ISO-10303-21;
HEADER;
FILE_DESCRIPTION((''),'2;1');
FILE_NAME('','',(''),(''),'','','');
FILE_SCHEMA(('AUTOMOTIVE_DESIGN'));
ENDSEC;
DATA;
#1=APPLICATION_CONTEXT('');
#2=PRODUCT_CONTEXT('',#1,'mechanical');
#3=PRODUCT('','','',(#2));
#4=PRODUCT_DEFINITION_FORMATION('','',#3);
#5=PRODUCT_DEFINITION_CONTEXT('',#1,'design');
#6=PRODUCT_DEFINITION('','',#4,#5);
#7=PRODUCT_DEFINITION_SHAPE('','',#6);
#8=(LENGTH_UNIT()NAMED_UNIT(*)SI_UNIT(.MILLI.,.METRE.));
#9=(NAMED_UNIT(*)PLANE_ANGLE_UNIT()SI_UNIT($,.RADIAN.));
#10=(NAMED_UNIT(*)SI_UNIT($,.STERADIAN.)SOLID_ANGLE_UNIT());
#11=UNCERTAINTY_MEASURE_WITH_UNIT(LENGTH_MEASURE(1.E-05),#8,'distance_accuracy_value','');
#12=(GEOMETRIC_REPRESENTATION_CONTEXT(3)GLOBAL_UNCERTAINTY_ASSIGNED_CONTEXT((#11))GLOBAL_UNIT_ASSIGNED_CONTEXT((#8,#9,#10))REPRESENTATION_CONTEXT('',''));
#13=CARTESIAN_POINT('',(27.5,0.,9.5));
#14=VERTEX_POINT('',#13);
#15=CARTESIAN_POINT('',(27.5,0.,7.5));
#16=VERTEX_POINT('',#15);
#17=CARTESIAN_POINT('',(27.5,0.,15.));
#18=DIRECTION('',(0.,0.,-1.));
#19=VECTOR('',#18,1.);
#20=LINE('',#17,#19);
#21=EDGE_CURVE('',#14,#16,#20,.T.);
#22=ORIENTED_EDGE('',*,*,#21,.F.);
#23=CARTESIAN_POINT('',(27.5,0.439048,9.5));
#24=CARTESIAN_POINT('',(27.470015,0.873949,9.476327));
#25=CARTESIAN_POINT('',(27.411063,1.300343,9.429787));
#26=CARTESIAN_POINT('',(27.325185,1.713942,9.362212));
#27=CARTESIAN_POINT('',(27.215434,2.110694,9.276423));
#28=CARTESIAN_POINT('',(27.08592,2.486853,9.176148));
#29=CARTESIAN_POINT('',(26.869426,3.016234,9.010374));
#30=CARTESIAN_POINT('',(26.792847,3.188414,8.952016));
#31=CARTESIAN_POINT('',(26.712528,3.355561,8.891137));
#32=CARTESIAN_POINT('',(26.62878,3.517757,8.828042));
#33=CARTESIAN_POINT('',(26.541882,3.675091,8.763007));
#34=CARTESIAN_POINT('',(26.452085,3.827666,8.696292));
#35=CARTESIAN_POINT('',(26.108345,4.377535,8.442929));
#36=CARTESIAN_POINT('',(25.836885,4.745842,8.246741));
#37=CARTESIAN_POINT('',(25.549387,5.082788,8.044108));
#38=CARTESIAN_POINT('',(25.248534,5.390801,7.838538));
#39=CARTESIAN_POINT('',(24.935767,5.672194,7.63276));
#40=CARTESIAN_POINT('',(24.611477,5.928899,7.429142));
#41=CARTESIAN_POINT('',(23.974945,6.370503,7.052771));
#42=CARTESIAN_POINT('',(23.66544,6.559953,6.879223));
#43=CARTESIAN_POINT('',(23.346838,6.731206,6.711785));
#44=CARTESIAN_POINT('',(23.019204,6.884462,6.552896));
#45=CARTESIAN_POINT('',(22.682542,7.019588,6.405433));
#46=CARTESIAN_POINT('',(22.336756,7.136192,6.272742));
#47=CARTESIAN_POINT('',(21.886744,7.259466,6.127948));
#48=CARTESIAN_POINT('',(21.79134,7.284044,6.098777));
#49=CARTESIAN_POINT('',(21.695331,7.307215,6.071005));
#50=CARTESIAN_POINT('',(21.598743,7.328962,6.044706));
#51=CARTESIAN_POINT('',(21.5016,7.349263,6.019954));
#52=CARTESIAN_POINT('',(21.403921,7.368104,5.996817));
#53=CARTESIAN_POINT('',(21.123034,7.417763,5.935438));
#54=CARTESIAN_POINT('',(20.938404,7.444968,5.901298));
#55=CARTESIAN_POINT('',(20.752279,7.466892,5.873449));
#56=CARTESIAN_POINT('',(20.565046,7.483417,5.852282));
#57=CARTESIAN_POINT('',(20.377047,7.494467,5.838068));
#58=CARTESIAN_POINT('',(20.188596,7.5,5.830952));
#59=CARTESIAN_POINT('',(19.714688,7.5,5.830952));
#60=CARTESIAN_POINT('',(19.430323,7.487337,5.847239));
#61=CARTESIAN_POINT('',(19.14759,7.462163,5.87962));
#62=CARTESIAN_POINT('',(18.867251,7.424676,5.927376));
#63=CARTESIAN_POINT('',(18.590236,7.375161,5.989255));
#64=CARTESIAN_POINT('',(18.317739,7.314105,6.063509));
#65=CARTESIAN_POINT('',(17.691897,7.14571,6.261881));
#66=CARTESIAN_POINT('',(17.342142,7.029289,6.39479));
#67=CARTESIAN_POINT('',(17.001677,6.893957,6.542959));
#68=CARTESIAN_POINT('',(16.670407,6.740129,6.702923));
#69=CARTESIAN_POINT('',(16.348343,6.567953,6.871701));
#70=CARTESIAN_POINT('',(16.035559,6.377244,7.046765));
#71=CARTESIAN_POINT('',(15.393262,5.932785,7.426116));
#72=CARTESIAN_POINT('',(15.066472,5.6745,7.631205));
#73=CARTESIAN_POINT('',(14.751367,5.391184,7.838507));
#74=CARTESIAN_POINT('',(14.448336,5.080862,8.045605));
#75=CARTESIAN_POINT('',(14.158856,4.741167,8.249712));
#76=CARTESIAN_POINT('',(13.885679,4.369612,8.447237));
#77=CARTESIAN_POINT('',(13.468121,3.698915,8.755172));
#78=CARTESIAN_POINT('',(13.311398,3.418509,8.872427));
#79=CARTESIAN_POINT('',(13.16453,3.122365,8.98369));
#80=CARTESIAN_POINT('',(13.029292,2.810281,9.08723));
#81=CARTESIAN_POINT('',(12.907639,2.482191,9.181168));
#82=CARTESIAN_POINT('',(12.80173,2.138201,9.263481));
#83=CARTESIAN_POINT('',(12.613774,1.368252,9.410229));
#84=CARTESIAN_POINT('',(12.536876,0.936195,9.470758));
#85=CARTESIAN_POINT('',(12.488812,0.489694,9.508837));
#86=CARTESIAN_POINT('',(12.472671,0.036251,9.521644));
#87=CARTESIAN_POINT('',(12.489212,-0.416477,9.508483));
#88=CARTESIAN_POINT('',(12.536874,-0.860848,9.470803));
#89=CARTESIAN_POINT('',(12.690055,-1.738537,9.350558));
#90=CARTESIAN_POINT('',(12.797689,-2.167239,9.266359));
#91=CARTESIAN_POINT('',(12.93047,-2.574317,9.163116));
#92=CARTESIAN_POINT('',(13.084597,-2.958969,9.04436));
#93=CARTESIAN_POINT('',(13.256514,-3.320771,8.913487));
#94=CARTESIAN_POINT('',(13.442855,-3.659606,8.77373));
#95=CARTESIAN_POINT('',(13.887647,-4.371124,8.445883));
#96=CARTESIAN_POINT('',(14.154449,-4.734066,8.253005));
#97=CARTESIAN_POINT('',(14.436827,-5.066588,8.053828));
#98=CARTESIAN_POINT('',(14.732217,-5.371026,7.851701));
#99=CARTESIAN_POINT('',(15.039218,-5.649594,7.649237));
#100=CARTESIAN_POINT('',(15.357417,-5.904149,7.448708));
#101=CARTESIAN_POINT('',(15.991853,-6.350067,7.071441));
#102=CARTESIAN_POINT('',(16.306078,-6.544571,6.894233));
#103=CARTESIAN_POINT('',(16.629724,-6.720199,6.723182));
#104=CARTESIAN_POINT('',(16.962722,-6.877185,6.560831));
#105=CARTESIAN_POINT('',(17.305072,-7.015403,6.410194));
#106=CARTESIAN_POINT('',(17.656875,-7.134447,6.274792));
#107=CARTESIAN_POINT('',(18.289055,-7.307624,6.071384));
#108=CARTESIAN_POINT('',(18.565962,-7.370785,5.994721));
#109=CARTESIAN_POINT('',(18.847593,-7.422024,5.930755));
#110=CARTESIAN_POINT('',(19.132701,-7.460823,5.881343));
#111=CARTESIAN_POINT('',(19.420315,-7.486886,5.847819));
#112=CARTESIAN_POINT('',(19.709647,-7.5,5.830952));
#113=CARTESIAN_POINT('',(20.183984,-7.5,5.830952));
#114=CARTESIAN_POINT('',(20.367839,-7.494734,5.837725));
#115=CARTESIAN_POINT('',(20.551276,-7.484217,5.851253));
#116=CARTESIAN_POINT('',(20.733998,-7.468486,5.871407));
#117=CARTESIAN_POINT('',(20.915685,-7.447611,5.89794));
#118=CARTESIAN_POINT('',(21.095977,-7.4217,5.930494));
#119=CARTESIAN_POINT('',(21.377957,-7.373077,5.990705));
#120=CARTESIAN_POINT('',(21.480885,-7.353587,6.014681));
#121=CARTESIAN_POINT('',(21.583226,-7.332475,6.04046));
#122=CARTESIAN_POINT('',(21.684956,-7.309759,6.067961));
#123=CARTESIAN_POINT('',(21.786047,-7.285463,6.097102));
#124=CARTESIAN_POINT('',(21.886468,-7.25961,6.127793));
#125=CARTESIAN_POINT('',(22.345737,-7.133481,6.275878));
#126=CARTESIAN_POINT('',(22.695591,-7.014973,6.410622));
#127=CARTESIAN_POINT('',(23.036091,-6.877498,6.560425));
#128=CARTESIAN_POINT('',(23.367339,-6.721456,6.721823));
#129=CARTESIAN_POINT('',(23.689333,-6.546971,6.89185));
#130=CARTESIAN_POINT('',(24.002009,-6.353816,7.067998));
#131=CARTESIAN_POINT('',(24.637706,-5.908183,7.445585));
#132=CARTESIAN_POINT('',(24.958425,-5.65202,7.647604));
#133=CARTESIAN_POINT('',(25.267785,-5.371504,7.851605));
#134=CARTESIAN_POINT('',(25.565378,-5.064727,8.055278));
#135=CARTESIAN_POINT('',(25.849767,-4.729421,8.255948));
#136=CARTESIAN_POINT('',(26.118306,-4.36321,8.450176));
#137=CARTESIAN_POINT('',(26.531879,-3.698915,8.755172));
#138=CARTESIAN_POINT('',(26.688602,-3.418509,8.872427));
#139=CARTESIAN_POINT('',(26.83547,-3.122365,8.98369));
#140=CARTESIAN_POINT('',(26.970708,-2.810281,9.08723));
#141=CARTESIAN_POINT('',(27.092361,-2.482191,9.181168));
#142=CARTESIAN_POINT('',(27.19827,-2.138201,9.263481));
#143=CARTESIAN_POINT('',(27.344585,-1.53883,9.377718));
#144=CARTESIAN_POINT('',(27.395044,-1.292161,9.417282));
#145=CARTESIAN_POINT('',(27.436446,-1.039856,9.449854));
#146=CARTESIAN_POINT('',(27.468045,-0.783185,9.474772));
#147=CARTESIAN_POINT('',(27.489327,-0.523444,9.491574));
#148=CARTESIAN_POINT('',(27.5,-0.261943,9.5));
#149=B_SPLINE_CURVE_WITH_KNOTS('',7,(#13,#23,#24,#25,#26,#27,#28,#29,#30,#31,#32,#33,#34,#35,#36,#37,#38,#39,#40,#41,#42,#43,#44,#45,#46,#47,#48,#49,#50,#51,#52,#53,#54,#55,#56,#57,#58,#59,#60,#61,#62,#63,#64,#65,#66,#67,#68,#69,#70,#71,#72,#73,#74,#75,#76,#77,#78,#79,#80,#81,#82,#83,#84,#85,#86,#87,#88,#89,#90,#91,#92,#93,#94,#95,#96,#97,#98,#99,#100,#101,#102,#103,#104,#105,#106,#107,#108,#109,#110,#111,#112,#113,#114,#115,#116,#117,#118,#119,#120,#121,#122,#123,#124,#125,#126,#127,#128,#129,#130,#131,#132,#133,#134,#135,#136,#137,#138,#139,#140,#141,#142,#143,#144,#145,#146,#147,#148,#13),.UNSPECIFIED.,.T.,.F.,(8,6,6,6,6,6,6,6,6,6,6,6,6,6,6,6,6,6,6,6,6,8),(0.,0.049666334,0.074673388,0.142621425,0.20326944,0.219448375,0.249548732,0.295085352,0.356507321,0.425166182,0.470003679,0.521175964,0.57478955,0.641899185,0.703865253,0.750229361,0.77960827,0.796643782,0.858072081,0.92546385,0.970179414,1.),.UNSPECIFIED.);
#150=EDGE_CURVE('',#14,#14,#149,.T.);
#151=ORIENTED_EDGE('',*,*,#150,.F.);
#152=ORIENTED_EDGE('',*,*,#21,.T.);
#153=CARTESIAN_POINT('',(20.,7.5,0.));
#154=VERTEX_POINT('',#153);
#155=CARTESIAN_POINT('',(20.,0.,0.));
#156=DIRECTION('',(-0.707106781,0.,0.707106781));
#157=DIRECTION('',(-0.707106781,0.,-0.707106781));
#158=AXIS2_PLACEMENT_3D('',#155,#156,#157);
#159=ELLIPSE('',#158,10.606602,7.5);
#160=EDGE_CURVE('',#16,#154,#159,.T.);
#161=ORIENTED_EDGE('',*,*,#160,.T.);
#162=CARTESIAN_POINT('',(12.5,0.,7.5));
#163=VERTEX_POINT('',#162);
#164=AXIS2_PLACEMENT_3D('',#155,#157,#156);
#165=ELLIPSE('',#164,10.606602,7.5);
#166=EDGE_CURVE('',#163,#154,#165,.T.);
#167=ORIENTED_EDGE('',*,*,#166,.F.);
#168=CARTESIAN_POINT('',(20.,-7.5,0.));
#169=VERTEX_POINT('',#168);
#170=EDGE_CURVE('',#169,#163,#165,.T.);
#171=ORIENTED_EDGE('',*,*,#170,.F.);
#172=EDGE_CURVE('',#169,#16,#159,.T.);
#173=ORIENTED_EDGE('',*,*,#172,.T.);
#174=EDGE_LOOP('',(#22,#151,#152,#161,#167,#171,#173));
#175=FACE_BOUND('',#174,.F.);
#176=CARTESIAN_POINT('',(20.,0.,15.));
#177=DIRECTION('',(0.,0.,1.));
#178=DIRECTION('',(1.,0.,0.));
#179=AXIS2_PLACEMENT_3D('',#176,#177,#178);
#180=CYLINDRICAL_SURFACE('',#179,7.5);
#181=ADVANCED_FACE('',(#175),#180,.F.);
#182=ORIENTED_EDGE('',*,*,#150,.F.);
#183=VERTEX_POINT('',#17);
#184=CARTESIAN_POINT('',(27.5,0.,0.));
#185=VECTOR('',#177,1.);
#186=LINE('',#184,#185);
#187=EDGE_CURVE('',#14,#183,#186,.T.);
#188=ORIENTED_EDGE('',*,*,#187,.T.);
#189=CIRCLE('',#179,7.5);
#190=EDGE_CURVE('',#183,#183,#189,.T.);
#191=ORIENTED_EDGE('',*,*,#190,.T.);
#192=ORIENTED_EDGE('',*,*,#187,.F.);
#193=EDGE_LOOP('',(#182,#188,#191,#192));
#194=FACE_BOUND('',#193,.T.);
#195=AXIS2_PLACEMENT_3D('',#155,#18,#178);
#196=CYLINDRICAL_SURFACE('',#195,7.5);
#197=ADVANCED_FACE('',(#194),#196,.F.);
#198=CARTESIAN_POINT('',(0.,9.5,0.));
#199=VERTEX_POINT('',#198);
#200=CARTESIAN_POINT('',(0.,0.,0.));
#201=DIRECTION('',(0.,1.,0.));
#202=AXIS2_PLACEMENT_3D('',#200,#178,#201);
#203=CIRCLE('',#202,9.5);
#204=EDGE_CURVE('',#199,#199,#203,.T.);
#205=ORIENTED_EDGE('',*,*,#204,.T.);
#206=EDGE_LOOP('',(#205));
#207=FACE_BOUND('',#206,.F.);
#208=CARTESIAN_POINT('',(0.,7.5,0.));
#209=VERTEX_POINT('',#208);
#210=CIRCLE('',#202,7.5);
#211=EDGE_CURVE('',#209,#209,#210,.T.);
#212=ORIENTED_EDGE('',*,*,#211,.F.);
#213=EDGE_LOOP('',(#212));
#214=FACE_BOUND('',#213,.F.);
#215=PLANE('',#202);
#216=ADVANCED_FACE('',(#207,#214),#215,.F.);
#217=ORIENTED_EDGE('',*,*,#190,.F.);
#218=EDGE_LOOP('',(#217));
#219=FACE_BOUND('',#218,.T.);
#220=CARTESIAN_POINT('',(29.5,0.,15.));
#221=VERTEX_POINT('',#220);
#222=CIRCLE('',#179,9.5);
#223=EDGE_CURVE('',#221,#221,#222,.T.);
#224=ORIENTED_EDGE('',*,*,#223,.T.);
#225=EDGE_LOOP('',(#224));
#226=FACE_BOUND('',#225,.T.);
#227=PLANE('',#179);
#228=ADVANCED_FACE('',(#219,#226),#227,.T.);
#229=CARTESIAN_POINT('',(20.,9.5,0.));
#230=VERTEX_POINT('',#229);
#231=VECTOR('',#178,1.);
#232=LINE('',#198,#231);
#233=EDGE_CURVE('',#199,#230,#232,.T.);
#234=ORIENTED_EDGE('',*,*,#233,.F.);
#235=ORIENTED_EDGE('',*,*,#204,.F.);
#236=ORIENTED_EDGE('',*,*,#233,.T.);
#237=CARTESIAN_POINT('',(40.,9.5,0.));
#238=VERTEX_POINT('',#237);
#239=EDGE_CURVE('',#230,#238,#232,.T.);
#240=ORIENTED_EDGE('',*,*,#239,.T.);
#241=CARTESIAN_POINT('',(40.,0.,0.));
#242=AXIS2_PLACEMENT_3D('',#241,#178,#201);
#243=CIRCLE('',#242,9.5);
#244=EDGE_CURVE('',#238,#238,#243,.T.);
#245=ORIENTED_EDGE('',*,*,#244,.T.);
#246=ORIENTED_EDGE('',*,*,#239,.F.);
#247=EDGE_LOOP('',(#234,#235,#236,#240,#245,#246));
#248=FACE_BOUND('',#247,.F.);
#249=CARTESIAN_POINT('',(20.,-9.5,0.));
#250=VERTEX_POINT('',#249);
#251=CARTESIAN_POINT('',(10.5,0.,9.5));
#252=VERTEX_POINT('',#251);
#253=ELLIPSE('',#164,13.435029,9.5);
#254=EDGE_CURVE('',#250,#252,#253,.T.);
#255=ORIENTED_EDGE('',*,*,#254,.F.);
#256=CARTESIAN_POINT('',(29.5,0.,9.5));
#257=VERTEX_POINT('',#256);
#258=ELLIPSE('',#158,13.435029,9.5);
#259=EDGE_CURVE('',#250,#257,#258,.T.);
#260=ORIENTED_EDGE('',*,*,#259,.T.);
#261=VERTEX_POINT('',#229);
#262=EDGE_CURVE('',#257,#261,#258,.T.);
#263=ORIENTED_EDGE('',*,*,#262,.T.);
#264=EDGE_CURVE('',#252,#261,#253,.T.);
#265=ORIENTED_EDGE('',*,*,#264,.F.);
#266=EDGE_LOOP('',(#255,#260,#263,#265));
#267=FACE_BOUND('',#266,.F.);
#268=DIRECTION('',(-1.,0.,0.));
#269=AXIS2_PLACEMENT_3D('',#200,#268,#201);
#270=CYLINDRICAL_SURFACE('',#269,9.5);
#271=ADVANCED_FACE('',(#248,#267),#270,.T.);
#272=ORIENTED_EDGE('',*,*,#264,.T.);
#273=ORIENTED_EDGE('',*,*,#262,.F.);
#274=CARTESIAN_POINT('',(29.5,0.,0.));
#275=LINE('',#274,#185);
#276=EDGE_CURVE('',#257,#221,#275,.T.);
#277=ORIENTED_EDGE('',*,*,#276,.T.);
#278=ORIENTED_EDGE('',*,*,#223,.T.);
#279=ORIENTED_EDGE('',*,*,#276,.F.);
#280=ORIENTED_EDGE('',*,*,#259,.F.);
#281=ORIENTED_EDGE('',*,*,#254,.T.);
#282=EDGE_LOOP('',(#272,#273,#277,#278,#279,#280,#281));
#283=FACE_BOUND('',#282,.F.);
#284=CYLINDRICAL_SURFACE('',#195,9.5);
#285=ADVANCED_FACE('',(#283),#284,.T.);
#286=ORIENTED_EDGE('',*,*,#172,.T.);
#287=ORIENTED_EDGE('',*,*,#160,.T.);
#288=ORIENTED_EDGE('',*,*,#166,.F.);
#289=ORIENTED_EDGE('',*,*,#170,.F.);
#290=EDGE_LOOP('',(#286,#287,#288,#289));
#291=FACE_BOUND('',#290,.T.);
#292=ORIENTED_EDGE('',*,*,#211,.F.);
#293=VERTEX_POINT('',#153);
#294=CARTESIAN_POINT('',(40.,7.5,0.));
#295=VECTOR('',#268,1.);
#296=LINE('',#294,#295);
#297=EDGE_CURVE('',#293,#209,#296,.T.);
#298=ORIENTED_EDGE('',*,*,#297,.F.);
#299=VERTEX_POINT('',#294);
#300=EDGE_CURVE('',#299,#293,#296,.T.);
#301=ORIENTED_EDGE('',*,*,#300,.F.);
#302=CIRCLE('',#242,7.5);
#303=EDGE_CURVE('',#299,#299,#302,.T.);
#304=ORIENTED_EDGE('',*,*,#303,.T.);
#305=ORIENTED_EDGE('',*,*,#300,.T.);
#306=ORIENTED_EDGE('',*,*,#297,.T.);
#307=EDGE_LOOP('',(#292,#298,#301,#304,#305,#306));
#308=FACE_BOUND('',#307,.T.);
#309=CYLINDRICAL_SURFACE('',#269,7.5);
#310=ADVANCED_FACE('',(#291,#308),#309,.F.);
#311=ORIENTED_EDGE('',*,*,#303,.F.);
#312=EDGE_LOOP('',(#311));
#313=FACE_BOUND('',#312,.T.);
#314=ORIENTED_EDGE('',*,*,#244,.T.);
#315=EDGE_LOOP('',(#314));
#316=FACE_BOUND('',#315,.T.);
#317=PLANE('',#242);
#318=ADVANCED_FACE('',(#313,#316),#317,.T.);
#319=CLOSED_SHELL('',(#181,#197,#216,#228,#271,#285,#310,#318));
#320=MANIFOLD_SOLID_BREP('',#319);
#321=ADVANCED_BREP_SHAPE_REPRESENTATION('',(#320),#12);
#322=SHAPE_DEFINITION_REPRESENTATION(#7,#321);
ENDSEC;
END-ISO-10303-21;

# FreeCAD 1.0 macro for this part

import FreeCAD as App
import Part
import Sketcher

V = App.Vector
Q = App.Units.Quantity

doc = App.newDocument("Part")
body = doc.addObject("PartDesign::Body", "Body")

# Sketch on YZ plane
sketch1 = body.newObject("Sketcher::SketchObject", "Sketch")
sketch1.AttachmentSupport = (doc.getObject("YZ_Plane"), [""])
sketch1.MapMode = "FlatFace"
sketch1.addGeometry(Part.Circle(V(0, 0, 0), V(0, 0, 1), 10), False)
sketch1.addGeometry(Part.Circle(V(0, 0, 0), V(0, 0, 1), 8), False)
sketch1.addConstraint(Sketcher.Constraint("Coincident", 0, 3, -1, 1))
sketch1.addConstraint(Sketcher.Constraint("Coincident", 1, 3, -1, 1))
sketch1.addConstraint(Sketcher.Constraint("Diameter", 0, Q("19 mm")))
sketch1.addConstraint(Sketcher.Constraint("Diameter", 1, Q("15 mm")))
pad1 = body.newObject("PartDesign::Pad", "Pad")
pad1.Profile = sketch1
pad1.Length = 40

# Sketch on XY plane
sketch2 = body.newObject("Sketcher::SketchObject", "Sketch001")
sketch2.AttachmentSupport = (doc.getObject("XY_Plane"), [""])
sketch2.MapMode = "FlatFace"
sketch2.addGeometry(Part.Circle(V(20, 0, 0), V(0, 0, 1), 10), False)
sketch2.addGeometry(Part.Circle(V(20, 0, 0), V(0, 0, 1), 8), False)
sketch2.addConstraint(Sketcher.Constraint("Coincident", 1, 3, 0, 3))
sketch2.addConstraint(Sketcher.Constraint("PointOnObject", 0, 3, -1))
sketch2.addConstraint(Sketcher.Constraint("Diameter", 0, Q("19 mm")))
sketch2.addConstraint(Sketcher.Constraint("Diameter", 1, Q("15 mm")))
sketch2.addConstraint(Sketcher.Constraint("DistanceX", -1, 1, 0, 3, Q("20 mm")))
pad2 = body.newObject("PartDesign::Pad", "Pad001")
pad2.Profile = sketch2
pad2.Length = 15

# Sketch on YZ plane
sketch3 = body.newObject("Sketcher::SketchObject", "Sketch002")
sketch3.AttachmentSupport = (doc.getObject("YZ_Plane"), [""])
sketch3.MapMode = "FlatFace"
sketch3.AttachmentOffset = App.Placement(V(0, 0, 40), App.Rotation())
sketch3.addGeometry(Part.Circle(V(0, 0, 0), V(0, 0, 1), 8), False)
sketch3.addConstraint(Sketcher.Constraint("Coincident", 0, 3, -1, 1))
sketch3.addConstraint(Sketcher.Constraint("Diameter", 0, Q("15 mm")))
pocket1 = body.newObject("PartDesign::Pocket", "Pocket")
pocket1.Profile = sketch3
pocket1.Length = 50

# Sketch on XY plane
sketch4 = body.newObject("Sketcher::SketchObject", "Sketch003")
sketch4.AttachmentSupport = (doc.getObject("XY_Plane"), [""])
sketch4.MapMode = "FlatFace"
sketch4.AttachmentOffset = App.Placement(V(0, 0, 15), App.Rotation())
sketch4.addGeometry(Part.Circle(V(20, 0, 0), V(0, 0, 1), 8), False)
sketch4.addConstraint(Sketcher.Constraint("PointOnObject", 0, 3, -1))
sketch4.addConstraint(Sketcher.Constraint("Diameter", 0, Q("15 mm")))
sketch4.addConstraint(Sketcher.Constraint("DistanceX", -1, 1, 0, 3, Q("20 mm")))
pocket2 = body.newObject("PartDesign::Pocket", "Pocket001")
pocket2.Profile = sketch4
pocket2.Length = 15

doc.recompute()
